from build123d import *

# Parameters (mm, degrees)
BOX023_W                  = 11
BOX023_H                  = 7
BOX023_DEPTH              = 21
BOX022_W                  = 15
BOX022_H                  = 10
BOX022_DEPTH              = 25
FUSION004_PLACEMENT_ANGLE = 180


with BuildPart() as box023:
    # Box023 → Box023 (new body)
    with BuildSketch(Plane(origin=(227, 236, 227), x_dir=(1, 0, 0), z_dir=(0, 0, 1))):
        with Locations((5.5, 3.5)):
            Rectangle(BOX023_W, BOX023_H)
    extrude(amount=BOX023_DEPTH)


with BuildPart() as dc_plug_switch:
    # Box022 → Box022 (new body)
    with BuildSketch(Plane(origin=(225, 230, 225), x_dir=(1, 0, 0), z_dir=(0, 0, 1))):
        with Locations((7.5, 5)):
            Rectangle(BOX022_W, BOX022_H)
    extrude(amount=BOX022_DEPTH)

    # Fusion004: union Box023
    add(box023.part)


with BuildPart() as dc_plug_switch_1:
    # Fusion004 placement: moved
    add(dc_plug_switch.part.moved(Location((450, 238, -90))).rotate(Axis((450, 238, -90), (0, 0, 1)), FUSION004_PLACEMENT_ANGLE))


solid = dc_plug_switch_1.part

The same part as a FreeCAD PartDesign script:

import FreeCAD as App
import Part
import Sketcher

V = App.Vector
Q = App.Units.Quantity

doc = App.newDocument("Part")
params = doc.addObject("Spreadsheet::Sheet", "Params")
for row, (alias, value) in enumerate([
    ("sketch1_width", "11 mm"),
    ("sketch1_height", "7 mm"),
    ("pad1_length", "21 mm"),
    ("sketch2_width", "15 mm"),
    ("sketch2_height", "10 mm"),
    ("pad2_length", "25 mm"),
], start=1):
    params.set(f"A{row}", alias)
    params.set(f"B{row}", "=" + value)
    params.setAlias(f"B{row}", alias)

body = doc.addObject("PartDesign::Body", "Body")

# Sketch on XY plane
sketch1 = body.newObject("Sketcher::SketchObject", "Sketch")
sketch1.AttachmentSupport = (doc.getObject("XY_Plane"), [""])
sketch1.MapMode = "FlatFace"
sketch1.AttachmentOffset = App.Placement(V(0, 0, 227), App.Rotation())
sketch1.addGeometry(Part.LineSegment(V(227, 243, 0), V(227, 236, 0)), False)
sketch1.addGeometry(Part.LineSegment(V(227, 236, 0), V(238, 236, 0)), False)
sketch1.addGeometry(Part.LineSegment(V(238, 236, 0), V(238, 243, 0)), False)
sketch1.addGeometry(Part.LineSegment(V(238, 243, 0), V(227, 243, 0)), False)
sketch1.addConstraint(Sketcher.Constraint("Coincident", 0, 2, 1, 1))
sketch1.addConstraint(Sketcher.Constraint("Coincident", 1, 2, 2, 1))
sketch1.addConstraint(Sketcher.Constraint("Coincident", 2, 2, 3, 1))
sketch1.addConstraint(Sketcher.Constraint("Coincident", 3, 2, 0, 1))
sketch1.addConstraint(Sketcher.Constraint("Vertical", 0))
sketch1.addConstraint(Sketcher.Constraint("Horizontal", 1))
sketch1.addConstraint(Sketcher.Constraint("Vertical", 2))
sketch1.addConstraint(Sketcher.Constraint("Horizontal", 3))
sketch1.addConstraint(Sketcher.Constraint("DistanceX", 1, 1, 1, 2, Q("11 mm")))
sketch1.addConstraint(Sketcher.Constraint("DistanceY", 0, 2, 0, 1, Q("7 mm")))
sketch1.addConstraint(Sketcher.Constraint("DistanceX", -1, 1, 0, 2, Q("227 mm")))
sketch1.addConstraint(Sketcher.Constraint("DistanceY", -1, 1, 0, 2, Q("236 mm")))
sketch1.setExpression("Constraints[8]", "Params.sketch1_width")
sketch1.setExpression("Constraints[9]", "Params.sketch1_height")
pad1 = body.newObject("PartDesign::Pad", "Pad")
pad1.Profile = sketch1
pad1.setExpression("Length", "Params.pad1_length")
body2 = doc.addObject("PartDesign::Body", "Body001")

# Sketch on XY plane
sketch2 = body2.newObject("Sketcher::SketchObject", "Sketch001")
sketch2.AttachmentSupport = (doc.getObject("XY_Plane001"), [""])
sketch2.MapMode = "FlatFace"
sketch2.AttachmentOffset = App.Placement(V(0, 0, 225), App.Rotation())
sketch2.addGeometry(Part.LineSegment(V(225, 240, 0), V(225, 230, 0)), False)
sketch2.addGeometry(Part.LineSegment(V(225, 230, 0), V(240, 230, 0)), False)
sketch2.addGeometry(Part.LineSegment(V(240, 230, 0), V(240, 240, 0)), False)
sketch2.addGeometry(Part.LineSegment(V(240, 240, 0), V(225, 240, 0)), False)
sketch2.addConstraint(Sketcher.Constraint("Coincident", 0, 2, 1, 1))
sketch2.addConstraint(Sketcher.Constraint("Coincident", 1, 2, 2, 1))
sketch2.addConstraint(Sketcher.Constraint("Coincident", 2, 2, 3, 1))
sketch2.addConstraint(Sketcher.Constraint("Coincident", 3, 2, 0, 1))
sketch2.addConstraint(Sketcher.Constraint("Vertical", 0))
sketch2.addConstraint(Sketcher.Constraint("Horizontal", 1))
sketch2.addConstraint(Sketcher.Constraint("Vertical", 2))
sketch2.addConstraint(Sketcher.Constraint("Horizontal", 3))
sketch2.addConstraint(Sketcher.Constraint("DistanceX", 1, 1, 1, 2, Q("15 mm")))
sketch2.addConstraint(Sketcher.Constraint("DistanceY", 0, 2, 0, 1, Q("10 mm")))
sketch2.addConstraint(Sketcher.Constraint("DistanceX", -1, 1, 0, 2, Q("225 mm")))
sketch2.addConstraint(Sketcher.Constraint("DistanceY", -1, 1, 0, 2, Q("230 mm")))
sketch2.setExpression("Constraints[8]", "Params.sketch2_width")
sketch2.setExpression("Constraints[9]", "Params.sketch2_height")
pad2 = body2.newObject("PartDesign::Pad", "Pad001")
pad2.Profile = sketch2
pad2.setExpression("Length", "Params.pad2_length")
doc.recompute()

boolean = body2.newObject("PartDesign::Boolean", "Boolean")
boolean.Type = "Fuse"
boolean.addObjects([body])
body3 = doc.addObject("PartDesign::Body", "Body002")
doc.recompute()

body2.Placement = App.Placement(V(450, 238, -90), App.Rotation(V(0, 0, 1), 180))
boolean2 = body3.newObject("PartDesign::Boolean", "Boolean001")
boolean2.Type = "Fuse"
boolean2.addObjects([body2])

doc.recompute()
